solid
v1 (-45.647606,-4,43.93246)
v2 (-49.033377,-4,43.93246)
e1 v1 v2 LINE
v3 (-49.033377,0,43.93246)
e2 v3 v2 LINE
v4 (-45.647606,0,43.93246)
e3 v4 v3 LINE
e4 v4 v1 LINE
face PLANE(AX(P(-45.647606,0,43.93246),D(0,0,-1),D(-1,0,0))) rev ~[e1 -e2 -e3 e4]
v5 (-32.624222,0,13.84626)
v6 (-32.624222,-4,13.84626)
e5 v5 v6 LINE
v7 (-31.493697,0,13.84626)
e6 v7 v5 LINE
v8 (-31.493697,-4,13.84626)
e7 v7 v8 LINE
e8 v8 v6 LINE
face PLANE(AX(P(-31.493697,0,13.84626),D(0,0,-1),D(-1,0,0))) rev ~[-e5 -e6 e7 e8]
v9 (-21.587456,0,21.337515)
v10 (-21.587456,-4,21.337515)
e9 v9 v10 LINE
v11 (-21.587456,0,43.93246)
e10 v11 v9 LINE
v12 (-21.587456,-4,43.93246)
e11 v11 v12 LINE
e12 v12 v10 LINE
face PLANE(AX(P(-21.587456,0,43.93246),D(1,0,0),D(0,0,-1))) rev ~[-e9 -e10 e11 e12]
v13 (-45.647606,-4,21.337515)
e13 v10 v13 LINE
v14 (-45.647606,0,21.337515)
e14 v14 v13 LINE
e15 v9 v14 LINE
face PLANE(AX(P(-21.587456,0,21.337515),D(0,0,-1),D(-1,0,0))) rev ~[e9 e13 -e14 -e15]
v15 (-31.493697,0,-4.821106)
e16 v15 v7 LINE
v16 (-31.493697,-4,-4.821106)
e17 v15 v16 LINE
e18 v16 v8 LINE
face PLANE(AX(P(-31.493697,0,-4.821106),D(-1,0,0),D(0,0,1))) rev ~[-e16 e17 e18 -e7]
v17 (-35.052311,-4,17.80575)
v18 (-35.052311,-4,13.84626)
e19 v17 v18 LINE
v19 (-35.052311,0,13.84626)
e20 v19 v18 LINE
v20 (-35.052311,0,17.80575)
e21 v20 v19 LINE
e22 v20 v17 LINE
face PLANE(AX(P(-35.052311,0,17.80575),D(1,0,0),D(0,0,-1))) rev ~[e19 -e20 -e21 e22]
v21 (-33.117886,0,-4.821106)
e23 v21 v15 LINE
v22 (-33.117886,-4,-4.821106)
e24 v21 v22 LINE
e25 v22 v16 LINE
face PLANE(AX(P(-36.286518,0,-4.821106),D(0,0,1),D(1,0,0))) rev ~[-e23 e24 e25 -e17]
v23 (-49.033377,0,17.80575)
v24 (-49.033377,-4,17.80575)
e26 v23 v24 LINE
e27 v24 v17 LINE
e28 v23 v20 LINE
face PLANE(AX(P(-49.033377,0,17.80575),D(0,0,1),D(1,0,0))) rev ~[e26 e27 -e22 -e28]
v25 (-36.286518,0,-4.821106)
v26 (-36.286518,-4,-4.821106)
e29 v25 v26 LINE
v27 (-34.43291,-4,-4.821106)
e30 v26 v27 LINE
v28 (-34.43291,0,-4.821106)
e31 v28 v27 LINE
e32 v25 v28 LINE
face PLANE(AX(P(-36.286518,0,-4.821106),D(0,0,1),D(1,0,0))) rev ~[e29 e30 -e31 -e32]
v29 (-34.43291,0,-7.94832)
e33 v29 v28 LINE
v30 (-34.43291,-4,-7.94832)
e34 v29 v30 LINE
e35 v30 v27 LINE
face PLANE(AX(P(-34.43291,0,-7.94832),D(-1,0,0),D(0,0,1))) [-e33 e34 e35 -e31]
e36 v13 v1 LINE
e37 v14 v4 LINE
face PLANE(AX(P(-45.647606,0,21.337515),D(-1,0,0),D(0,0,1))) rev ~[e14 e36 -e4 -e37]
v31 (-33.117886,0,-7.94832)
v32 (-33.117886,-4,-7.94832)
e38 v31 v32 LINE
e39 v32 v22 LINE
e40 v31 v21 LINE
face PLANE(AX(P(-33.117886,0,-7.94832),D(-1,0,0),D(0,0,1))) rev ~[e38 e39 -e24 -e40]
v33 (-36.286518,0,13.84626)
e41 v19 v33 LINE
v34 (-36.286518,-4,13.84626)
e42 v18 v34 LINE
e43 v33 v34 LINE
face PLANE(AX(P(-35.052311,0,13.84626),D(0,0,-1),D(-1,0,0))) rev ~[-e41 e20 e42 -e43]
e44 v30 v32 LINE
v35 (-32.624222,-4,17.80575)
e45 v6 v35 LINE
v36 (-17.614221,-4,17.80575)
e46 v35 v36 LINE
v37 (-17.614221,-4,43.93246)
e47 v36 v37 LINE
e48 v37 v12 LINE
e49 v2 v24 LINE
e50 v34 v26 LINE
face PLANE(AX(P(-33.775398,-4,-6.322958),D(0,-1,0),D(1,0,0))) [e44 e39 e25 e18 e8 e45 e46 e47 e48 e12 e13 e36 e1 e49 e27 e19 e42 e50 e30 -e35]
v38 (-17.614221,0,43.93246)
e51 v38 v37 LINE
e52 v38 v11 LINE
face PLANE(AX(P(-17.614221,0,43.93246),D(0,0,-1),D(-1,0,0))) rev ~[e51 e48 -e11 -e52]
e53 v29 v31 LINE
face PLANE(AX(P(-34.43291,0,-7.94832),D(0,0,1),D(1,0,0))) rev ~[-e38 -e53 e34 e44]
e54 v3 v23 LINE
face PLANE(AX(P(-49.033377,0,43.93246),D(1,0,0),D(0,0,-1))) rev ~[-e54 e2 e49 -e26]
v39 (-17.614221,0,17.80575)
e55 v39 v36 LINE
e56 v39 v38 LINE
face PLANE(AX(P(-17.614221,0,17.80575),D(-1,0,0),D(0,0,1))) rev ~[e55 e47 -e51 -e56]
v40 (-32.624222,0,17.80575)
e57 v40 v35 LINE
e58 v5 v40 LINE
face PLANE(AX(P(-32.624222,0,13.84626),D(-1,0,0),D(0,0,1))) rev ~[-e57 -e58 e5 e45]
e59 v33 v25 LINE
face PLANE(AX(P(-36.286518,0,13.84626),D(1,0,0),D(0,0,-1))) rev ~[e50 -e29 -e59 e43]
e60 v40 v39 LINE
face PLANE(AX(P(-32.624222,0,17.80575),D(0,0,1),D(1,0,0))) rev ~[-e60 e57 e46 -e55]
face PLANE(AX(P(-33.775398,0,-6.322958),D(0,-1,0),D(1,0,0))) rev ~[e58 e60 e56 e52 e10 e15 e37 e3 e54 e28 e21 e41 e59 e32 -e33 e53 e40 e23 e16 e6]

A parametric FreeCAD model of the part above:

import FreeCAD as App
import Part
import Sketcher
Q = App.Units.Quantity

doc = App.newDocument("Part")
body = doc.addObject("PartDesign::Body", "Body")

# Sketch on XZ plane
sketch1 = body.newObject("Sketcher::SketchObject", "Sketch")
sketch1.AttachmentSupport = (doc.getObject("XZ_Plane"), [""])
sketch1.MapMode = "FlatFace"
sketch1.addGeometry(Part.LineSegment(App.Vector(-45.6, 43.9, 0), App.Vector(-49, 43.9, 0)), False)
sketch1.addGeometry(Part.LineSegment(App.Vector(-49, 43.9, 0), App.Vector(-49, 17.8, 0)), False)
sketch1.addGeometry(Part.LineSegment(App.Vector(-49, 17.8, 0), App.Vector(-35.1, 17.8, 0)), False)
sketch1.addGeometry(Part.LineSegment(App.Vector(-35.1, 17.8, 0), App.Vector(-35.1, 13.8, 0)), False)
sketch1.addGeometry(Part.LineSegment(App.Vector(-35.1, 13.8, 0), App.Vector(-36.3, 13.8, 0)), False)
sketch1.addGeometry(Part.LineSegment(App.Vector(-36.3, 13.8, 0), App.Vector(-36.3, -4.8, 0)), False)
sketch1.addGeometry(Part.LineSegment(App.Vector(-36.3, -4.8, 0), App.Vector(-31.5, -4.8, 0)), False)
sketch1.addGeometry(Part.LineSegment(App.Vector(-31.5, -4.8, 0), App.Vector(-31.5, 13.8, 0)), False)
sketch1.addGeometry(Part.LineSegment(App.Vector(-31.5, 13.8, 0), App.Vector(-32.6, 13.8, 0)), False)
sketch1.addGeometry(Part.LineSegment(App.Vector(-32.6, 13.8, 0), App.Vector(-32.6, 17.8, 0)), False)
sketch1.addGeometry(Part.LineSegment(App.Vector(-32.6, 17.8, 0), App.Vector(-17.6, 17.8, 0)), False)
sketch1.addGeometry(Part.LineSegment(App.Vector(-17.6, 17.8, 0), App.Vector(-17.6, 43.9, 0)), False)
sketch1.addGeometry(Part.LineSegment(App.Vector(-17.6, 43.9, 0), App.Vector(-21.6, 43.9, 0)), False)
sketch1.addGeometry(Part.LineSegment(App.Vector(-21.6, 43.9, 0), App.Vector(-21.6, 21.3, 0)), False)
sketch1.addGeometry(Part.LineSegment(App.Vector(-21.6, 21.3, 0), App.Vector(-45.6, 21.3, 0)), False)
sketch1.addGeometry(Part.LineSegment(App.Vector(-45.6, 21.3, 0), App.Vector(-45.6, 43.9, 0)), False)
sketch1.addConstraint(Sketcher.Constraint("Coincident", 0, 2, 1, 1))
sketch1.addConstraint(Sketcher.Constraint("Coincident", 1, 2, 2, 1))
sketch1.addConstraint(Sketcher.Constraint("Coincident", 2, 2, 3, 1))
sketch1.addConstraint(Sketcher.Constraint("Coincident", 3, 2, 4, 1))
sketch1.addConstraint(Sketcher.Constraint("Coincident", 4, 2, 5, 1))
sketch1.addConstraint(Sketcher.Constraint("Coincident", 5, 2, 6, 1))
sketch1.addConstraint(Sketcher.Constraint("Coincident", 6, 2, 7, 1))
sketch1.addConstraint(Sketcher.Constraint("Coincident", 7, 2, 8, 1))
sketch1.addConstraint(Sketcher.Constraint("Coincident", 8, 2, 9, 1))
sketch1.addConstraint(Sketcher.Constraint("Coincident", 9, 2, 10, 1))
sketch1.addConstraint(Sketcher.Constraint("Coincident", 10, 2, 11, 1))
sketch1.addConstraint(Sketcher.Constraint("Coincident", 11, 2, 12, 1))
sketch1.addConstraint(Sketcher.Constraint("Coincident", 12, 2, 13, 1))
sketch1.addConstraint(Sketcher.Constraint("Coincident", 13, 2, 14, 1))
sketch1.addConstraint(Sketcher.Constraint("Coincident", 14, 2, 15, 1))
sketch1.addConstraint(Sketcher.Constraint("Coincident", 15, 2, 0, 1))
sketch1.addConstraint(Sketcher.Constraint("Horizontal", 0))
sketch1.addConstraint(Sketcher.Constraint("Vertical", 1))
sketch1.addConstraint(Sketcher.Constraint("Horizontal", 2))
sketch1.addConstraint(Sketcher.Constraint("Vertical", 3))
sketch1.addConstraint(Sketcher.Constraint("Horizontal", 4))
sketch1.addConstraint(Sketcher.Constraint("Vertical", 5))
sketch1.addConstraint(Sketcher.Constraint("Horizontal", 6))
sketch1.addConstraint(Sketcher.Constraint("Vertical", 7))
sketch1.addConstraint(Sketcher.Constraint("Horizontal", 8))
sketch1.addConstraint(Sketcher.Constraint("Vertical", 9))
sketch1.addConstraint(Sketcher.Constraint("Horizontal", 10))
sketch1.addConstraint(Sketcher.Constraint("Vertical", 11))
sketch1.addConstraint(Sketcher.Constraint("Horizontal", 12))
sketch1.addConstraint(Sketcher.Constraint("Vertical", 13))
sketch1.addConstraint(Sketcher.Constraint("Horizontal", 14))
sketch1.addConstraint(Sketcher.Constraint("Vertical", 15))
sketch1.addConstraint(Sketcher.Constraint("Horizontal", 4, 2, 7, 2))
sketch1.addConstraint(Sketcher.Constraint("Horizontal", 2, 2, 9, 2))
sketch1.addConstraint(Sketcher.Constraint("Horizontal", 0, 2, 11, 2))
sketch1.addConstraint(Sketcher.Constraint("DistanceX", 10, 1, 10, 2, Q("15.010001 mm")))
sketch1.addConstraint(Sketcher.Constraint("DistanceX", 0, 2, 0, 1, Q("3.385771 mm")))
sketch1.addConstraint(Sketcher.Constraint("DistanceX", 6, 1, 6, 2, Q("4.792821 mm")))
sketch1.addConstraint(Sketcher.Constraint("DistanceX", 14, 2, 14, 1, Q("24.06015 mm")))
sketch1.addConstraint(Sketcher.Constraint("DistanceY", 1, 2, 1, 1, Q("26.12671 mm")))
sketch1.addConstraint(Sketcher.Constraint("DistanceY", 3, 2, 3, 1, Q("3.95949 mm")))
sketch1.addConstraint(Sketcher.Constraint("DistanceX", 2, 1, 2, 2, Q("13.981066 mm")))
sketch1.addConstraint(Sketcher.Constraint("DistanceX", 4, 2, 4, 1, Q("1.234207 mm")))
sketch1.addConstraint(Sketcher.Constraint("DistanceX", 8, 2, 8, 1, Q("1.130525 mm")))
sketch1.addConstraint(Sketcher.Constraint("DistanceY", 5, 2, 5, 1, Q("18.667366 mm")))
sketch1.addConstraint(Sketcher.Constraint("DistanceY", 13, 2, 13, 1, Q("22.594945 mm")))
sketch1.addConstraint(Sketcher.Constraint("DistanceY", -1, 1, 0, 2, Q("43.93246 mm")))
sketch1.addConstraint(Sketcher.Constraint("DistanceX", 2, 2, -1, 1, Q("35.052311 mm")))
pad1 = body.newObject("PartDesign::Pad", "Pad")
pad1.Profile = sketch1
pad1.Length = 4

# Sketch on XZ plane
sketch2 = body.newObject("Sketcher::SketchObject", "Sketch001")
sketch2.AttachmentSupport = (doc.getObject("XZ_Plane"), [""])
sketch2.MapMode = "FlatFace"
sketch2.addGeometry(Part.LineSegment(App.Vector(-34.4, -4.7, 0), App.Vector(-34.4, -7.9, 0)), False)
sketch2.addGeometry(Part.LineSegment(App.Vector(-34.4, -7.9, 0), App.Vector(-33.1, -7.9, 0)), False)
sketch2.addGeometry(Part.LineSegment(App.Vector(-33.1, -7.9, 0), App.Vector(-33.1, -4.7, 0)), False)
sketch2.addGeometry(Part.LineSegment(App.Vector(-33.1, -4.7, 0), App.Vector(-34.4, -4.7, 0)), False)
sketch2.addConstraint(Sketcher.Constraint("Coincident", 0, 2, 1, 1))
sketch2.addConstraint(Sketcher.Constraint("Coincident", 1, 2, 2, 1))
sketch2.addConstraint(Sketcher.Constraint("Coincident", 2, 2, 3, 1))
sketch2.addConstraint(Sketcher.Constraint("Coincident", 3, 2, 0, 1))
sketch2.addConstraint(Sketcher.Constraint("Vertical", 0))
sketch2.addConstraint(Sketcher.Constraint("Horizontal", 1))
sketch2.addConstraint(Sketcher.Constraint("Vertical", 2))
sketch2.addConstraint(Sketcher.Constraint("Horizontal", 3))
sketch2.addConstraint(Sketcher.Constraint("DistanceX", 1, 1, 1, 2, Q("1.315023 mm")))
sketch2.addConstraint(Sketcher.Constraint("DistanceY", 0, 2, 0, 1, Q("3.250724 mm")))
sketch2.addConstraint(Sketcher.Constraint("DistanceX", 0, 2, -1, 1, Q("34.43291 mm")))
sketch2.addConstraint(Sketcher.Constraint("DistanceY", 0, 2, -1, 1, Q("7.94832 mm")))
pad2 = body.newObject("PartDesign::Pad", "Pad001")
pad2.Profile = sketch2
pad2.Length = 4

doc.recompute()
